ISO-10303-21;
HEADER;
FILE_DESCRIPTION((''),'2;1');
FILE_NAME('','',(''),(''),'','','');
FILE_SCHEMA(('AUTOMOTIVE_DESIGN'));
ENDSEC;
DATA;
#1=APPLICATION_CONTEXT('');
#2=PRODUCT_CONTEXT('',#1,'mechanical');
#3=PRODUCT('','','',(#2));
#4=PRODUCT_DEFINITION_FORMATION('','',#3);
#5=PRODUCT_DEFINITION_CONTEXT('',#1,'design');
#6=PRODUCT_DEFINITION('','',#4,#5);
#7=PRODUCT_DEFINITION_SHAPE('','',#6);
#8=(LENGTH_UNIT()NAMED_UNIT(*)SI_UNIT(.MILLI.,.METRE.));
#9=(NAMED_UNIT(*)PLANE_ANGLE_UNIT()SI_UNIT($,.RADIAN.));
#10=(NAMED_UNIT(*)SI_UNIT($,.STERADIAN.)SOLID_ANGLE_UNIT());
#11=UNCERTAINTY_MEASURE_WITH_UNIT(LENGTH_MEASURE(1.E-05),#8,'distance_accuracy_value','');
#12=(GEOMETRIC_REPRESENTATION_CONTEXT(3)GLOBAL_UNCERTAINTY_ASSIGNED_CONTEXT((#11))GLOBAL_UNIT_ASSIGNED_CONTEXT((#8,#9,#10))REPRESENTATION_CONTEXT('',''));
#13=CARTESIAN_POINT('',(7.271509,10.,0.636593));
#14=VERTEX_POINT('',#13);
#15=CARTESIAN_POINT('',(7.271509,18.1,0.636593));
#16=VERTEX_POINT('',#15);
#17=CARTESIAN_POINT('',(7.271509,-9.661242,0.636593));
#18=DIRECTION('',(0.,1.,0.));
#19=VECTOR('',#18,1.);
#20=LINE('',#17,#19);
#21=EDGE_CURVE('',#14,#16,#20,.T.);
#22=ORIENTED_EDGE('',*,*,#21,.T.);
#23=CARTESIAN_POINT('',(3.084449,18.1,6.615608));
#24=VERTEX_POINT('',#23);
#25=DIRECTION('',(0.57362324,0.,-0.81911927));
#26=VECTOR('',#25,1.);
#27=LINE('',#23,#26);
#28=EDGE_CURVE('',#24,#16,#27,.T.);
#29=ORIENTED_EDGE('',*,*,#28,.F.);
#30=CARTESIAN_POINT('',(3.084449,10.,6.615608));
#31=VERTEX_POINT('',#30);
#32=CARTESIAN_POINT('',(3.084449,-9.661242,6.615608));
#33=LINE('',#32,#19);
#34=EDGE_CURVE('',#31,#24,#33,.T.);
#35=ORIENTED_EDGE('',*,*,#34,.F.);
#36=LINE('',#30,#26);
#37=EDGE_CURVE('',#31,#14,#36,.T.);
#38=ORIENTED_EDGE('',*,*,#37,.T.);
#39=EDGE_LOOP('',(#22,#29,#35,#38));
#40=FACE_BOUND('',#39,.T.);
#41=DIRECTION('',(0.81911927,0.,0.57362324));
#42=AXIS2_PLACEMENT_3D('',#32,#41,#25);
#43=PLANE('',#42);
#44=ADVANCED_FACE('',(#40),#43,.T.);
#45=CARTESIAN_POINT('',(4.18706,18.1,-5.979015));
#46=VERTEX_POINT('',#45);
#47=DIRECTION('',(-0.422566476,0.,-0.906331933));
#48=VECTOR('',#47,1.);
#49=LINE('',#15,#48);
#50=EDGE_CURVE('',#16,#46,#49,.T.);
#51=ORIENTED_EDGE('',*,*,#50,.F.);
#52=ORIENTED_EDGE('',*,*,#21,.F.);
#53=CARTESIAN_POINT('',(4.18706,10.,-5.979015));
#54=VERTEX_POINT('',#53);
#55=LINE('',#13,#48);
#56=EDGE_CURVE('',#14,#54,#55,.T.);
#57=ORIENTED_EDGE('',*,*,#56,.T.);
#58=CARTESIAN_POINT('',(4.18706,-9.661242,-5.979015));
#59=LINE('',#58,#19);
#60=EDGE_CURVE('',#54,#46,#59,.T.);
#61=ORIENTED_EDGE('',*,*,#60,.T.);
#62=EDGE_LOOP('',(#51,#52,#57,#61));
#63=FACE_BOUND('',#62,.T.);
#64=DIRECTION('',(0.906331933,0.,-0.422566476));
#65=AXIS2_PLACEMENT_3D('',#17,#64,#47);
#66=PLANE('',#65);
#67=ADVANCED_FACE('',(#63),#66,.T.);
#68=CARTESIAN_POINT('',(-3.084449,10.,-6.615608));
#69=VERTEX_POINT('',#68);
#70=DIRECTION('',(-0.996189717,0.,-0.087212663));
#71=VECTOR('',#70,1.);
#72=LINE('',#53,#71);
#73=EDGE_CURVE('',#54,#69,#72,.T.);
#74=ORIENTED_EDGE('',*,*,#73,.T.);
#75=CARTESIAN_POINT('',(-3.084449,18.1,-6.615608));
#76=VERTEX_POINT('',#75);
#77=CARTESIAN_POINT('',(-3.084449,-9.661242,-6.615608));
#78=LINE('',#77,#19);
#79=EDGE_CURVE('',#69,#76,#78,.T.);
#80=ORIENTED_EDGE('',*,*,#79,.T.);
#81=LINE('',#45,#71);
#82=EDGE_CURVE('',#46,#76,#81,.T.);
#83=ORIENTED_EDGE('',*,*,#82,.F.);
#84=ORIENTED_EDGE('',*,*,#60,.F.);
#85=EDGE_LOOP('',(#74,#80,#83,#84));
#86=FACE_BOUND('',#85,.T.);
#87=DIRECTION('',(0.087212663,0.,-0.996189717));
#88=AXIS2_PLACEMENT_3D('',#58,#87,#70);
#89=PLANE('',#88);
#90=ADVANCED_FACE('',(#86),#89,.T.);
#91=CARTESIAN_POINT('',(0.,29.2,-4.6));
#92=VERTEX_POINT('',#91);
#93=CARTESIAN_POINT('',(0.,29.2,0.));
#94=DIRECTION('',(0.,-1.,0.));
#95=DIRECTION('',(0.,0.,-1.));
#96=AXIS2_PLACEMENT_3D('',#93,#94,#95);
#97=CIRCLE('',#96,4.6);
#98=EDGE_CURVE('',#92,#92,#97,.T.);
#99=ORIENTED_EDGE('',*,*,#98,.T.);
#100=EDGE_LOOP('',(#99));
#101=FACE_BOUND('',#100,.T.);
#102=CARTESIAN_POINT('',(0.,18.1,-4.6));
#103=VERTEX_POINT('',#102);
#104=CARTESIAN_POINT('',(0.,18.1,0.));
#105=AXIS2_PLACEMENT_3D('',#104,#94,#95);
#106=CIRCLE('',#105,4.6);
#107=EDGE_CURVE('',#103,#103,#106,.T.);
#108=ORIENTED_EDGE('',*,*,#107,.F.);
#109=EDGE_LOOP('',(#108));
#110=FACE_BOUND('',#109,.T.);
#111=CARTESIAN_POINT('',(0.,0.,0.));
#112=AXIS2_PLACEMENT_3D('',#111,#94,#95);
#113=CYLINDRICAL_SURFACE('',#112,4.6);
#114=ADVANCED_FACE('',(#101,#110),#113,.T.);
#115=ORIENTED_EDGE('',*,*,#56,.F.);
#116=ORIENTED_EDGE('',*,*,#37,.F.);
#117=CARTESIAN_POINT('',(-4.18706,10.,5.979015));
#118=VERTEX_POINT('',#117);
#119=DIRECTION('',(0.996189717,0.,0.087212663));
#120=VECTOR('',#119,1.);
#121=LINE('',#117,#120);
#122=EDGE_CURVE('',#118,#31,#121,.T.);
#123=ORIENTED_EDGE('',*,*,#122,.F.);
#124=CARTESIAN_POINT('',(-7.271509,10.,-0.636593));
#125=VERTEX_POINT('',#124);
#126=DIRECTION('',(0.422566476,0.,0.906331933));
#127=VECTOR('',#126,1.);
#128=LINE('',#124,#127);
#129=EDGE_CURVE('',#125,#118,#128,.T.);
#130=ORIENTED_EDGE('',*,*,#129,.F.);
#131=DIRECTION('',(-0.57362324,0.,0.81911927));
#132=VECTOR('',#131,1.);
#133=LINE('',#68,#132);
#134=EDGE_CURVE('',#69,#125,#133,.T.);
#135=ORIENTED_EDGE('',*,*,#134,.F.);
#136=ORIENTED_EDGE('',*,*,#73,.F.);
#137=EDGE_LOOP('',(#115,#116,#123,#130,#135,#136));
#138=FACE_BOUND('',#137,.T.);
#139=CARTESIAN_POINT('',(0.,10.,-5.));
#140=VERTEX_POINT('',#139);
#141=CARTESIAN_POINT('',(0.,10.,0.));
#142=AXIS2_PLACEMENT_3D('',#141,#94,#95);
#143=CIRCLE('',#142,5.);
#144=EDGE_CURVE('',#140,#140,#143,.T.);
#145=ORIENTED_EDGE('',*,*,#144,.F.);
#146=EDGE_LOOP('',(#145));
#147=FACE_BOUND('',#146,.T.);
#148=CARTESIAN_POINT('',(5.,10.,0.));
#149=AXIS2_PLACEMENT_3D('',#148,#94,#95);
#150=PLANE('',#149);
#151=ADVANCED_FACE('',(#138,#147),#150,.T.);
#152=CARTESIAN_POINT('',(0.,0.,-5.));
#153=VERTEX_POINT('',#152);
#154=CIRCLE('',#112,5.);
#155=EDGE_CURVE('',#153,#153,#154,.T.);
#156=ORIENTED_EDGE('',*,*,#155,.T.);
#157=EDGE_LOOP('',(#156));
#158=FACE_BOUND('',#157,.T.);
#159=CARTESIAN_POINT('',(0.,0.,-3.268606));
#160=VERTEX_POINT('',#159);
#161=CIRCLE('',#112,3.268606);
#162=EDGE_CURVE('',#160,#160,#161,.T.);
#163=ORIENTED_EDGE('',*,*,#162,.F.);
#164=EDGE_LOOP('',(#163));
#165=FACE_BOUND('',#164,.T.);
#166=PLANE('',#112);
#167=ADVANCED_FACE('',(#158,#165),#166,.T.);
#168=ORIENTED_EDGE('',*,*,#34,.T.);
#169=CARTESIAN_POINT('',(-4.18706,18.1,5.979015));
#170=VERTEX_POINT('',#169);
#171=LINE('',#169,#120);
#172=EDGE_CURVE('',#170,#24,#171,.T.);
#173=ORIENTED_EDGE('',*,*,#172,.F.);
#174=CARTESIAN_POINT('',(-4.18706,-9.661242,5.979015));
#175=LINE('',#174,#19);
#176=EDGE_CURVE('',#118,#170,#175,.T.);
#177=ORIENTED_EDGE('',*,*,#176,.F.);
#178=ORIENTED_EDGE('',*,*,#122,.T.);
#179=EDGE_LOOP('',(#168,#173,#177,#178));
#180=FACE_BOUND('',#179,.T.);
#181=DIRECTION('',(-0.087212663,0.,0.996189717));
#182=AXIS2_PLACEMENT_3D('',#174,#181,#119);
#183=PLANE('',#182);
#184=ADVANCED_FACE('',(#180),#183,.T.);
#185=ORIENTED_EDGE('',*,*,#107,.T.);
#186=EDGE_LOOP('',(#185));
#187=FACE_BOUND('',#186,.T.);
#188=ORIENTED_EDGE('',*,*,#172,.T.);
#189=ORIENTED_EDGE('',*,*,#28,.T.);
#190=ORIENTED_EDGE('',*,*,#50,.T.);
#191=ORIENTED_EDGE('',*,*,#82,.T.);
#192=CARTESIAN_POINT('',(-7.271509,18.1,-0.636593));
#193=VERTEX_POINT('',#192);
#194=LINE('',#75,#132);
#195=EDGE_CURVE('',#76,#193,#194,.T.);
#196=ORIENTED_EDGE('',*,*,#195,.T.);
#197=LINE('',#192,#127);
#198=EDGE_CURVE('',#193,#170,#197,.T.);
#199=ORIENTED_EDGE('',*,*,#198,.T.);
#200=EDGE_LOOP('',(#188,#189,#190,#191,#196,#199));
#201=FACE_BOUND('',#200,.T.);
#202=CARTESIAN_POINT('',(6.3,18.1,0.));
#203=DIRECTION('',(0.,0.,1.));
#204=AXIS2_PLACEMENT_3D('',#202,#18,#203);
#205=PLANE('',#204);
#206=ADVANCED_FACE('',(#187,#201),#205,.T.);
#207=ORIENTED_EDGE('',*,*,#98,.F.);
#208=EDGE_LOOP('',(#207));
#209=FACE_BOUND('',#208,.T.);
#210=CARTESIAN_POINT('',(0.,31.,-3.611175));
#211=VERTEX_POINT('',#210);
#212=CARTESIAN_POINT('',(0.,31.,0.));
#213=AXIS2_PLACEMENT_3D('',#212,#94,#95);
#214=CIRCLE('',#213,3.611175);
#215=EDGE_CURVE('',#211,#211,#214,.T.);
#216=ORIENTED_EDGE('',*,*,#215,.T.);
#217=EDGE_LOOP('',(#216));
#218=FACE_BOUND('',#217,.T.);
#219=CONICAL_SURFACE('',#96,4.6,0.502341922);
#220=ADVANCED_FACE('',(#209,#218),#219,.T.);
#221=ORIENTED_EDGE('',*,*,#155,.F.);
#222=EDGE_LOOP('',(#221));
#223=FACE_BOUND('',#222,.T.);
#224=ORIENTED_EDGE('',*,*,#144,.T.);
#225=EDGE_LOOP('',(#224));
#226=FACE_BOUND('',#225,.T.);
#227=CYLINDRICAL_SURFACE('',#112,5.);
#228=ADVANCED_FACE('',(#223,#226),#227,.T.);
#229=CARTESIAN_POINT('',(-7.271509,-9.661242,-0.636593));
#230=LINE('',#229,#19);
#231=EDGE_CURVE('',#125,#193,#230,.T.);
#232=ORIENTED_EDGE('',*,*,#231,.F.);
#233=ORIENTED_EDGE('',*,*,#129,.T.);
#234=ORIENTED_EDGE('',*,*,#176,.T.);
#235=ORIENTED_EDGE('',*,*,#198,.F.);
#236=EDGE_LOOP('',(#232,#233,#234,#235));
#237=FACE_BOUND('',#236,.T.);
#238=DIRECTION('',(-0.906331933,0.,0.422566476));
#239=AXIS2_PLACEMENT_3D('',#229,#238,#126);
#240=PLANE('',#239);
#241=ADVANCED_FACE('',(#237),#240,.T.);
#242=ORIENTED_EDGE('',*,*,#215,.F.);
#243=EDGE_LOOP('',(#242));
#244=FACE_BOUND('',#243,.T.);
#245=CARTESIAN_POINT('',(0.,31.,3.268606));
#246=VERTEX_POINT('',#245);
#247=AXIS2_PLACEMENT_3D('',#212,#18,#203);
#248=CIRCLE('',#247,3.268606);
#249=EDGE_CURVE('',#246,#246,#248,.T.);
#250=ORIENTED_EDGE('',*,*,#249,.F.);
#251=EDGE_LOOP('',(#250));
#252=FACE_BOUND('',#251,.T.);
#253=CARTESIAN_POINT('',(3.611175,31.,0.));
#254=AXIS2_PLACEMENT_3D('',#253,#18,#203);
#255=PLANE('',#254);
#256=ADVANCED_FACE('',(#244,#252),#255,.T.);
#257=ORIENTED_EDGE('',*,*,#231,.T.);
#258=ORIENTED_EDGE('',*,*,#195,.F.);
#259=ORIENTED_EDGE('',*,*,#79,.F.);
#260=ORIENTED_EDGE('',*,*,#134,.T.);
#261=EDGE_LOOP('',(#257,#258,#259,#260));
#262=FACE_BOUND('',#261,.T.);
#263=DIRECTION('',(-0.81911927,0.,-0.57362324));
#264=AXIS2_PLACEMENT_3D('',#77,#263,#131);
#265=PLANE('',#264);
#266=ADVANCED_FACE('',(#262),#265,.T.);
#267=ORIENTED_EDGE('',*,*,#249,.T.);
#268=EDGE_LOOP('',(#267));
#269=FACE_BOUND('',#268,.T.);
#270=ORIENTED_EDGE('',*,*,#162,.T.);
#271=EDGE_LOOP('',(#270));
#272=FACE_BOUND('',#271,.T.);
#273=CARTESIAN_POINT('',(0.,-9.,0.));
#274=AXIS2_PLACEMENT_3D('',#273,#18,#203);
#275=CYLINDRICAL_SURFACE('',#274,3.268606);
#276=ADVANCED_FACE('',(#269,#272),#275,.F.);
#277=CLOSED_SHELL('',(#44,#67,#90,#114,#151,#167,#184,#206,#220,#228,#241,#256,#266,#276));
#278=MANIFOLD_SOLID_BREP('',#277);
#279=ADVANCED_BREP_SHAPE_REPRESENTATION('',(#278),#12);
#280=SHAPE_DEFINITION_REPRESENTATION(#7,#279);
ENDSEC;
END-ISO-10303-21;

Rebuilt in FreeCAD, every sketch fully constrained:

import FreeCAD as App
import Part
import Sketcher
Q = App.Units.Quantity

doc = App.newDocument("Part")
params = doc.addObject("Spreadsheet::Sheet", "Params")
for row, (alias, value) in enumerate([
    ("sketch1_width", "5 mm"),
    ("sketch1_height", "31 mm"),
    ("sketch1_height2", "10 mm"),
    ("sketch1_width2", "1.3 mm"),
    ("sketch1_width3", "1.7 mm"),
    ("revolution_angle", "360 deg"),
    ("pad1_length", "8.1 mm"),
    ("pocket1_length", "40 mm"),
], start=1):
    params.set(f"A{row}", alias)
    params.set(f"B{row}", "=" + value)
    params.setAlias(f"B{row}", alias)

body = doc.addObject("PartDesign::Body", "Body")

# Sketch on XY plane
sketch1 = doc.addObject("Sketcher::SketchObject", "Sketch")
body.addObject(sketch1)
sketch1.AttachmentSupport = (doc.XY_Plane, [""])
sketch1.MapMode = "FlatFace"
sketch1.addGeometry(Part.LineSegment(App.Vector(0, 31, 0), App.Vector(0, 0, 0)), False)
sketch1.addGeometry(Part.LineSegment(App.Vector(0, 0, 0), App.Vector(5, 0, 0)), False)
sketch1.addGeometry(Part.LineSegment(App.Vector(5, 0, 0), App.Vector(5, 10, 0)), False)
sketch1.addGeometry(Part.LineSegment(App.Vector(5, 10, 0), App.Vector(6.3, 10, 0)), False)
sketch1.addGeometry(Part.LineSegment(App.Vector(6.3, 10, 0), App.Vector(6.3, 18.1, 0)), False)
sketch1.addGeometry(Part.LineSegment(App.Vector(6.3, 18.1, 0), App.Vector(4.6, 18.1, 0)), False)
sketch1.addGeometry(Part.LineSegment(App.Vector(4.6, 18.1, 0), App.Vector(4.6, 29.2, 0)), False)
sketch1.addGeometry(Part.LineSegment(App.Vector(4.6, 29.2, 0), App.Vector(3.611175, 31, 0)), False)
sketch1.addGeometry(Part.LineSegment(App.Vector(3.611175, 31, 0), App.Vector(0, 31, 0)), False)
sketch1.addConstraint(Sketcher.Constraint("Coincident", 0, 2, 1, 1))
sketch1.addConstraint(Sketcher.Constraint("Coincident", 1, 2, 2, 1))
sketch1.addConstraint(Sketcher.Constraint("Coincident", 2, 2, 3, 1))
sketch1.addConstraint(Sketcher.Constraint("Coincident", 3, 2, 4, 1))
sketch1.addConstraint(Sketcher.Constraint("Coincident", 4, 2, 5, 1))
sketch1.addConstraint(Sketcher.Constraint("Coincident", 5, 2, 6, 1))
sketch1.addConstraint(Sketcher.Constraint("Coincident", 6, 2, 7, 1))
sketch1.addConstraint(Sketcher.Constraint("Coincident", 7, 2, 8, 1))
sketch1.addConstraint(Sketcher.Constraint("Coincident", 8, 2, 0, 1))
sketch1.addConstraint(Sketcher.Constraint("Vertical", 0))
sketch1.addConstraint(Sketcher.Constraint("Horizontal", 1))
sketch1.addConstraint(Sketcher.Constraint("Vertical", 2))
sketch1.addConstraint(Sketcher.Constraint("Horizontal", 3))
sketch1.addConstraint(Sketcher.Constraint("Vertical", 4))
sketch1.addConstraint(Sketcher.Constraint("Horizontal", 5))
sketch1.addConstraint(Sketcher.Constraint("Vertical", 6))
sketch1.addConstraint(Sketcher.Constraint("Horizontal", 8))
sketch1.addConstraint(Sketcher.Constraint("Coincident", 0, 2, -1, 1))
sketch1.addConstraint(Sketcher.Constraint("DistanceX", 1, 1, 1, 2, Q("5 mm")))
sketch1.addConstraint(Sketcher.Constraint("DistanceY", 0, 2, 0, 1, Q("31 mm")))
sketch1.addConstraint(Sketcher.Constraint("DistanceY", 2, 1, 2, 2, Q("10 mm")))
sketch1.addConstraint(Sketcher.Constraint("DistanceX", 3, 1, 3, 2, Q("1.3 mm")))
sketch1.addConstraint(Sketcher.Constraint("DistanceX", 5, 2, 5, 1, Q("1.7 mm")))
sketch1.addConstraint(Sketcher.Constraint("DistanceY", 4, 1, 4, 2, Q("8.1 mm")))
sketch1.addConstraint(Sketcher.Constraint("DistanceY", 6, 1, 6, 2, Q("11.1 mm")))
sketch1.addConstraint(Sketcher.Constraint("DistanceX", 8, 2, 8, 1, Q("3.611175 mm")))
sketch1.setExpression("Constraints[18]", "Params.sketch1_width")
sketch1.setExpression("Constraints[19]", "Params.sketch1_height")
sketch1.setExpression("Constraints[20]", "Params.sketch1_height2")
sketch1.setExpression("Constraints[21]", "Params.sketch1_width2")
sketch1.setExpression("Constraints[22]", "Params.sketch1_width3")
revolution = doc.addObject("PartDesign::Revolution", "Revolution")
body.addObject(revolution)
revolution.Profile = sketch1
revolution.ReferenceAxis = (sketch1, ["V_Axis"])
revolution.setExpression("Angle", "Params.revolution_angle")

# Sketch on XZ plane
sketch2 = doc.addObject("Sketcher::SketchObject", "Sketch001")
body.addObject(sketch2)
sketch2.AttachmentSupport = (doc.XZ_Plane, [""])
sketch2.MapMode = "FlatFace"
sketch2.AttachmentOffset = App.Placement(App.Vector(0, 0, -18.1), App.Rotation())
sketch2.addGeometry(Part.LineSegment(App.Vector(7.271509, 0.636593, 0), App.Vector(4.18706, -5.979015, 0)), False)
sketch2.addGeometry(Part.LineSegment(App.Vector(4.18706, -5.979015, 0), App.Vector(-3.084449, -6.615608, 0)), False)
sketch2.addGeometry(Part.LineSegment(App.Vector(-3.084449, -6.615608, 0), App.Vector(-7.271509, -0.636593, 0)), False)
sketch2.addGeometry(Part.LineSegment(App.Vector(-7.271509, -0.636593, 0), App.Vector(-4.18706, 5.979015, 0)), False)
sketch2.addGeometry(Part.LineSegment(App.Vector(-4.18706, 5.979015, 0), App.Vector(3.084449, 6.615608, 0)), False)
sketch2.addGeometry(Part.LineSegment(App.Vector(3.084449, 6.615608, 0), App.Vector(7.271509, 0.636593, 0)), False)
sketch2.addConstraint(Sketcher.Constraint("Coincident", 0, 2, 1, 1))
sketch2.addConstraint(Sketcher.Constraint("Coincident", 1, 2, 2, 1))
sketch2.addConstraint(Sketcher.Constraint("Coincident", 2, 2, 3, 1))
sketch2.addConstraint(Sketcher.Constraint("Coincident", 3, 2, 4, 1))
sketch2.addConstraint(Sketcher.Constraint("Coincident", 4, 2, 5, 1))
sketch2.addConstraint(Sketcher.Constraint("Coincident", 5, 2, 0, 1))
sketch2.addConstraint(Sketcher.Constraint("Symmetric", 0, 2, 3, 2, -1, 1))
sketch2.addConstraint(Sketcher.Constraint("Symmetric", 1, 2, 4, 2, -1, 1))
sketch2.addConstraint(Sketcher.Constraint("Symmetric", 2, 2, 5, 2, -1, 1))
sketch2.addConstraint(Sketcher.Constraint("Equal", 0, 1))
sketch2.addConstraint(Sketcher.Constraint("Equal", 1, 2))
sketch2.addConstraint(Sketcher.Constraint("DistanceY", 2, 2, 4, 2, Q("7.252201 mm")))
sketch2.addConstraint(Sketcher.Constraint("Distance", 0, Q("7.299321 mm")))
sketch2.addConstraint(Sketcher.Constraint("DistanceX", -1, 1, 0, 2, Q("4.18706 mm")))
sketch2.addConstraint(Sketcher.Constraint("DistanceX", 1, 2, -1, 1, Q("3.084449 mm")))
pad1 = doc.addObject("PartDesign::Pad", "Pad")
body.addObject(pad1)
pad1.Profile = sketch2
pad1.setExpression("Length", "Params.pad1_length")

# Sketch on XZ plane
sketch3 = doc.addObject("Sketcher::SketchObject", "Sketch002")
body.addObject(sketch3)
sketch3.AttachmentSupport = (doc.XZ_Plane, [""])
sketch3.MapMode = "FlatFace"
sketch3.AttachmentOffset = App.Placement(App.Vector(0, 0, -31), App.Rotation())
sketch3.addGeometry(Part.Circle(App.Vector(0, 0, 0), App.Vector(0, 0, 1), 3.268606), False)
sketch3.addConstraint(Sketcher.Constraint("Coincident", 0, 3, -1, 1))
sketch3.addConstraint(Sketcher.Constraint("Diameter", 0, Q("6.537212 mm")))
pocket1 = doc.addObject("PartDesign::Pocket", "Pocket")
body.addObject(pocket1)
pocket1.Profile = sketch3
pocket1.setExpression("Length", "Params.pocket1_length")
pocket1.Reversed = True

doc.recompute()
